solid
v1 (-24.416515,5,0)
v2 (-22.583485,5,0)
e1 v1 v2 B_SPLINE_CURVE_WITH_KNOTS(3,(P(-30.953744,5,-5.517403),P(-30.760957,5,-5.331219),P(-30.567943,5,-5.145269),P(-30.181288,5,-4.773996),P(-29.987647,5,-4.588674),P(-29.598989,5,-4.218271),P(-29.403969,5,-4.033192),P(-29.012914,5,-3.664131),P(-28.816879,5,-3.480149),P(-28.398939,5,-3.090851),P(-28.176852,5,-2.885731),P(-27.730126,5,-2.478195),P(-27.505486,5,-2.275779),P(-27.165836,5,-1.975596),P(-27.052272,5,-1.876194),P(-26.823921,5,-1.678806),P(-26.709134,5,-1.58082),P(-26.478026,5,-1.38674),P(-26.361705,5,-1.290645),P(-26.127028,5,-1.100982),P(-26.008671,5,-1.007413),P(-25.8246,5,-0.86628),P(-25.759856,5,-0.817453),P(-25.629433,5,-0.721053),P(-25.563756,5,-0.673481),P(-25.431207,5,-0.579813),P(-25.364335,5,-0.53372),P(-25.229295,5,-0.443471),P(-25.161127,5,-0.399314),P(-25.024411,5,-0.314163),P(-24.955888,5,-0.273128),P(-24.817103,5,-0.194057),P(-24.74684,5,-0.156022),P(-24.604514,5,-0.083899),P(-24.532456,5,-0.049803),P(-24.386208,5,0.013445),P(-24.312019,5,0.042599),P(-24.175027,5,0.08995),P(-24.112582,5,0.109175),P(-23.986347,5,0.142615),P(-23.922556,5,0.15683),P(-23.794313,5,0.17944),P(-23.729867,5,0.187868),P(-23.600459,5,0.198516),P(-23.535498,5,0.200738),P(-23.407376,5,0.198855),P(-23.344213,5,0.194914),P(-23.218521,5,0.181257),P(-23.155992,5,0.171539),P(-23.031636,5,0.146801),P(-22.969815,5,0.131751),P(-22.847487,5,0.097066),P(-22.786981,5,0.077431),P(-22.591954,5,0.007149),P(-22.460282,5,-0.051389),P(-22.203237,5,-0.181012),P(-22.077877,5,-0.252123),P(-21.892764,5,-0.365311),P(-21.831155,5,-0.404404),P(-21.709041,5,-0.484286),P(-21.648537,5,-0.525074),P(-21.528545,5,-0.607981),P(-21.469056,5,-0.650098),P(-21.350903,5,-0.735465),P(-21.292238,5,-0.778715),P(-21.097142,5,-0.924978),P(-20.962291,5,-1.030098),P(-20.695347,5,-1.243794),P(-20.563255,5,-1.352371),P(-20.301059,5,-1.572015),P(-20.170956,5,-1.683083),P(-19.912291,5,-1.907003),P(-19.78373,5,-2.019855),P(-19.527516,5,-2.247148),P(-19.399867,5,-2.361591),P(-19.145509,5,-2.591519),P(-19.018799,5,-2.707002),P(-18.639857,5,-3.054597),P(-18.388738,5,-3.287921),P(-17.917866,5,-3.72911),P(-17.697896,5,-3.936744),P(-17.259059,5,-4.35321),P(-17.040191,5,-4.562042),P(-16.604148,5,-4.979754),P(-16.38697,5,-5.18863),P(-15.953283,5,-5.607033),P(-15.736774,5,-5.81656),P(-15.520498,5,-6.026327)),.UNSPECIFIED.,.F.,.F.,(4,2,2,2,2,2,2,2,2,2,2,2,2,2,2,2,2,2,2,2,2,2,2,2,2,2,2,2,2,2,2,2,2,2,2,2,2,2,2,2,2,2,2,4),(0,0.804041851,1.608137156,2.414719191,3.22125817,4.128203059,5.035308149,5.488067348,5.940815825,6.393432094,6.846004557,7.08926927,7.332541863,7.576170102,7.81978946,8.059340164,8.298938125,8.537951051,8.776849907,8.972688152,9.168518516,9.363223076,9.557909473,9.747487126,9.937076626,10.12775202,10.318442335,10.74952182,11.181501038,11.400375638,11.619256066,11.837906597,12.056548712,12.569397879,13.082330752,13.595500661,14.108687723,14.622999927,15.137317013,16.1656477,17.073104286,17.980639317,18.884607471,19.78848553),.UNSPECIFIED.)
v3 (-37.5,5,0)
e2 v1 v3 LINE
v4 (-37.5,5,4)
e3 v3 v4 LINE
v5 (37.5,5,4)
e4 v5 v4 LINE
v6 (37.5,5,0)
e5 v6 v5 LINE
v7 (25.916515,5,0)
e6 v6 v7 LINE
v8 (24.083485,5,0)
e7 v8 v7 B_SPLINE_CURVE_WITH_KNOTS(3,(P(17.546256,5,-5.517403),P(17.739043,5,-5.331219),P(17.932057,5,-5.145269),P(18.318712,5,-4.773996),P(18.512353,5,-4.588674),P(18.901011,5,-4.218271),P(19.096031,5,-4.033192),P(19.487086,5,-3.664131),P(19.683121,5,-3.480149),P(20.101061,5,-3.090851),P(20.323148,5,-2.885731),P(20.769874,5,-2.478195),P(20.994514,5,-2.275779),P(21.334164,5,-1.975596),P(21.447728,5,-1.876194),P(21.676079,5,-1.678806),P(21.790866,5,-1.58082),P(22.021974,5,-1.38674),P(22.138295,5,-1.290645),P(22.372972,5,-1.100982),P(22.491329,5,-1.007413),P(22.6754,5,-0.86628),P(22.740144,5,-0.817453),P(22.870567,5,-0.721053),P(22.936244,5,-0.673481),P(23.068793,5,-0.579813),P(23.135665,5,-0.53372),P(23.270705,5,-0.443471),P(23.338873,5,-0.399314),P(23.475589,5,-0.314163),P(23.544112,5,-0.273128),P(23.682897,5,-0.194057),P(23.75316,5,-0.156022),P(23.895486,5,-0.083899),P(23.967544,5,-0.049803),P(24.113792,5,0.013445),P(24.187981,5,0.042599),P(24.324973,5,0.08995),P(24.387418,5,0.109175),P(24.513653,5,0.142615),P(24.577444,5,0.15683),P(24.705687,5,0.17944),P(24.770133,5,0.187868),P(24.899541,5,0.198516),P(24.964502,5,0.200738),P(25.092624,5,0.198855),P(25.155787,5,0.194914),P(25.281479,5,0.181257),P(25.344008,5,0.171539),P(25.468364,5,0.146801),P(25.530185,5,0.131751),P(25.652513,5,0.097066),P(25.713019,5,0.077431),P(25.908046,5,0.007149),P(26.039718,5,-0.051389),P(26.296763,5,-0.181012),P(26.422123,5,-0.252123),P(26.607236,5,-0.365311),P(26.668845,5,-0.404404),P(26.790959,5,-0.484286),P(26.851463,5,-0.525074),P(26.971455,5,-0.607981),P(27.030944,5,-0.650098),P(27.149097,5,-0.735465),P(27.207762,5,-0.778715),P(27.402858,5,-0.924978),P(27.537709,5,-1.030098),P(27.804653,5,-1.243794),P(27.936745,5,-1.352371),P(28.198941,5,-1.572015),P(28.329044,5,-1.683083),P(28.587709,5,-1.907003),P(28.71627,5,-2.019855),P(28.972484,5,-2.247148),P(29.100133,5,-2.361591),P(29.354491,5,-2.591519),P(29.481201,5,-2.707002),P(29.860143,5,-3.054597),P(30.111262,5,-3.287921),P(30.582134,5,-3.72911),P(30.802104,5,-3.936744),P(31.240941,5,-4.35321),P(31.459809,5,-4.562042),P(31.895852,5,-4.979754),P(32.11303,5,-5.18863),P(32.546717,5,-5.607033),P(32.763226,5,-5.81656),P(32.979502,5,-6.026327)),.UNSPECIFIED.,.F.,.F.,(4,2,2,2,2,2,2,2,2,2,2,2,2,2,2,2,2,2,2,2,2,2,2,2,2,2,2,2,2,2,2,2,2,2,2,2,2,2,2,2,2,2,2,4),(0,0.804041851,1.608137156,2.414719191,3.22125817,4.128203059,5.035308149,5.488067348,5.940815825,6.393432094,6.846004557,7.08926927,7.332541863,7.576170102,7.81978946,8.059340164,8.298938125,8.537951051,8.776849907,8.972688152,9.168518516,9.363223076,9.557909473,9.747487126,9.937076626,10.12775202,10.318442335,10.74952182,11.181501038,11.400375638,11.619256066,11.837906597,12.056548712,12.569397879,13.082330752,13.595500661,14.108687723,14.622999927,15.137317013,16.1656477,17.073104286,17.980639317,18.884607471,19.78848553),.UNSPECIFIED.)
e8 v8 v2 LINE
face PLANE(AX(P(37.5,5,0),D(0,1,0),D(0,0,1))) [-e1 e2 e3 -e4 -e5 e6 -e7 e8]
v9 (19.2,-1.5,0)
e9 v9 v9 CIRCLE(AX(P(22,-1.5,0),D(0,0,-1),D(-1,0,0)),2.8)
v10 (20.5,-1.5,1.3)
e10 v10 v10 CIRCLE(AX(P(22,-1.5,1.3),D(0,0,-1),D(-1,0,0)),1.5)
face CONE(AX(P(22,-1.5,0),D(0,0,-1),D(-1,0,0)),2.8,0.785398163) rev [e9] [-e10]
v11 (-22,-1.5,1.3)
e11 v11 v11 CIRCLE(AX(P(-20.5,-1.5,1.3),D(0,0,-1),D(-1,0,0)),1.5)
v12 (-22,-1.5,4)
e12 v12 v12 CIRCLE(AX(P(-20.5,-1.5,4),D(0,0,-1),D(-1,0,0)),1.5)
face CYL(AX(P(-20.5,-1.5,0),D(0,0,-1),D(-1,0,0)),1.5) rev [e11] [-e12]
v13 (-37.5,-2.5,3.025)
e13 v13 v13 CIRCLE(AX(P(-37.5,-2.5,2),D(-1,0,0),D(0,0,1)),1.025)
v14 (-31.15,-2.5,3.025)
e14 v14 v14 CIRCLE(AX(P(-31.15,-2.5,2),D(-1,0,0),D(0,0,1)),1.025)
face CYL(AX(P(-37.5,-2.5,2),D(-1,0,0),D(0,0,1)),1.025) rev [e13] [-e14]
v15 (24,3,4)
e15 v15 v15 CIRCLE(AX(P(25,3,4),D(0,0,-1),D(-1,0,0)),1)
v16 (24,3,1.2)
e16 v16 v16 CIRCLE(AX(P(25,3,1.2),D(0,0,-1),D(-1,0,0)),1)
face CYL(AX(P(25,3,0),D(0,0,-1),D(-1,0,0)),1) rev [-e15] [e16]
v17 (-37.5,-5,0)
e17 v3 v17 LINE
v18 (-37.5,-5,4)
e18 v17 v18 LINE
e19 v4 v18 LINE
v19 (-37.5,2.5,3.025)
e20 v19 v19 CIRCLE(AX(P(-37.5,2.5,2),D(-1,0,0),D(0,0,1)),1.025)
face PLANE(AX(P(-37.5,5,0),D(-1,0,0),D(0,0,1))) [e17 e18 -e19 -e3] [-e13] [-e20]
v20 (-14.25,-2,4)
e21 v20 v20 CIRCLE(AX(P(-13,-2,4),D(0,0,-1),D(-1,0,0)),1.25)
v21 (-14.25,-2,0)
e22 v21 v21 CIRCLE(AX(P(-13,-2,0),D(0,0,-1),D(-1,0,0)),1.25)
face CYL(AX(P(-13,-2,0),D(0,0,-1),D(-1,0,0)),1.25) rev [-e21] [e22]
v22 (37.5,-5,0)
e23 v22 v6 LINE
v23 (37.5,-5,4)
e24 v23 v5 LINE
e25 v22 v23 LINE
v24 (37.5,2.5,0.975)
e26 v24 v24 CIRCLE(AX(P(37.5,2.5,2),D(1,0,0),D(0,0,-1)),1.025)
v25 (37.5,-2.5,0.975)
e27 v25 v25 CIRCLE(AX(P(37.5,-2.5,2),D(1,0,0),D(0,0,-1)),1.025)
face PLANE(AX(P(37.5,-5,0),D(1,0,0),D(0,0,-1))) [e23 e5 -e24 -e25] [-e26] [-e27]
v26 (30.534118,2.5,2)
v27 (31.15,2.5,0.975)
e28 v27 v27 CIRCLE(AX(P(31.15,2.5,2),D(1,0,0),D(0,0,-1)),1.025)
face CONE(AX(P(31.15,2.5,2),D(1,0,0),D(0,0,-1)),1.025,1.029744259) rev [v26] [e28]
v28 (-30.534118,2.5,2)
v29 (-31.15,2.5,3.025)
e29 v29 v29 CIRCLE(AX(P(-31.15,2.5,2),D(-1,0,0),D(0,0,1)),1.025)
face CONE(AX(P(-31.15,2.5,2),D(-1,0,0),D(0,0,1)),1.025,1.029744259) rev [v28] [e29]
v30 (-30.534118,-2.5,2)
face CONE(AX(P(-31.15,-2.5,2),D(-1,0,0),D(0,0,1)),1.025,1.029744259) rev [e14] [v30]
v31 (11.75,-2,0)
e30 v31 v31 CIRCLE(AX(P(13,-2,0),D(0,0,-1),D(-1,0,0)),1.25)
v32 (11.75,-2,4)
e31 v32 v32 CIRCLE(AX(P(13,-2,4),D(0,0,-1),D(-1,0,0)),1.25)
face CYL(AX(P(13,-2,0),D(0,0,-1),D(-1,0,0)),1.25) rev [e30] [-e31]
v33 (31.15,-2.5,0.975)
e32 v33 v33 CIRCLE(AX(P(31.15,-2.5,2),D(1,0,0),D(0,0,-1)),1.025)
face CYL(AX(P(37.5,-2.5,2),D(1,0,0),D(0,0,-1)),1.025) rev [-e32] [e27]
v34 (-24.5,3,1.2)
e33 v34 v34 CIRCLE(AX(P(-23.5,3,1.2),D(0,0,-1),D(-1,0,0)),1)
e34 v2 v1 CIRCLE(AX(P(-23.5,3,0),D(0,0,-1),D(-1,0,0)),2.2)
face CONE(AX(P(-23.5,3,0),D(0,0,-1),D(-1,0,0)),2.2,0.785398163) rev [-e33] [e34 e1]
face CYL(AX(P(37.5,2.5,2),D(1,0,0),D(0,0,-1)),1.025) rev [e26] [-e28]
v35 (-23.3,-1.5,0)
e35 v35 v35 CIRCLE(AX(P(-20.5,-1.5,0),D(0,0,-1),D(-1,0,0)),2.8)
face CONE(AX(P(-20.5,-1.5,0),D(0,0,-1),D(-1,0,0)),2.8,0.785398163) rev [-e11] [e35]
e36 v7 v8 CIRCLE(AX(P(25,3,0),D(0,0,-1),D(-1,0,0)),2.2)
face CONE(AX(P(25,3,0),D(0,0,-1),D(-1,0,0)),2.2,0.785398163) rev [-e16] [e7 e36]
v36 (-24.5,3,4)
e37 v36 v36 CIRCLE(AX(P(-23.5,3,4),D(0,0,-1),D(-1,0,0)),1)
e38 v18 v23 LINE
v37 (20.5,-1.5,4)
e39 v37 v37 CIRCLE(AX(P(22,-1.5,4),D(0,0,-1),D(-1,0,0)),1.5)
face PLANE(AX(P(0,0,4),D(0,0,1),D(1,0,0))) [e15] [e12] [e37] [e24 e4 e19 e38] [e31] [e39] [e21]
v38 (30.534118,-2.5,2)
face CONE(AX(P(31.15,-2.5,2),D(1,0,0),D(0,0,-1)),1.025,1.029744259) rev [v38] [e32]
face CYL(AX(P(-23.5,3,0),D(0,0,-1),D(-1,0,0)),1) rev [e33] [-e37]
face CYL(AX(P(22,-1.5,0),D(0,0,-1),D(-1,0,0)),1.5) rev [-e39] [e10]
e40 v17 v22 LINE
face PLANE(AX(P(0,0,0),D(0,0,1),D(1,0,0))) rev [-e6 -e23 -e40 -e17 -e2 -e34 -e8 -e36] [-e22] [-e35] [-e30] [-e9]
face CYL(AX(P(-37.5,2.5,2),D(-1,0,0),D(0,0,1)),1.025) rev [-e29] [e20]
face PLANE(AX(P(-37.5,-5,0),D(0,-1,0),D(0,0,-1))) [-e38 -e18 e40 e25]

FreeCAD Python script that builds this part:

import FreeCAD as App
import Part
import Sketcher
Q = App.Units.Quantity

doc = App.newDocument("Part")
body = doc.addObject("PartDesign::Body", "Body")

sketch1 = body.newObject("Sketcher::SketchObject", "Sketch")
sketch1.AttachmentSupport = (doc.getObject("XY_Plane"), [""])
sketch1.MapMode = "FlatFace"
sketch1.AttachmentOffset = App.Placement(App.Vector(0, 0, 4), App.Rotation())
sketch1.addGeometry(Part.LineSegment(App.Vector(-38, 5, 0), App.Vector(-38, -5, 0)), False)
sketch1.addGeometry(Part.LineSegment(App.Vector(-38, -5, 0), App.Vector(38, -5, 0)), False)
sketch1.addGeometry(Part.LineSegment(App.Vector(38, -5, 0), App.Vector(38, 5, 0)), False)
sketch1.addGeometry(Part.LineSegment(App.Vector(38, 5, 0), App.Vector(-38, 5, 0)), False)
sketch1.addConstraint(Sketcher.Constraint("Coincident", 0, 2, 1, 1))
sketch1.addConstraint(Sketcher.Constraint("Coincident", 1, 2, 2, 1))
sketch1.addConstraint(Sketcher.Constraint("Coincident", 2, 2, 3, 1))
sketch1.addConstraint(Sketcher.Constraint("Coincident", 3, 2, 0, 1))
sketch1.addConstraint(Sketcher.Constraint("Vertical", 0))
sketch1.addConstraint(Sketcher.Constraint("Horizontal", 1))
sketch1.addConstraint(Sketcher.Constraint("Vertical", 2))
sketch1.addConstraint(Sketcher.Constraint("Horizontal", 3))
sketch1.addConstraint(Sketcher.Constraint("Symmetric", 0, 2, 2, 2, -1, 1))
sketch1.addConstraint(Sketcher.Constraint("DistanceX", 1, 1, 1, 2, Q("75 mm")))
sketch1.addConstraint(Sketcher.Constraint("DistanceY", 0, 2, 0, 1, Q("10 mm")))
pad1 = body.newObject("PartDesign::Pad", "Pad")
pad1.Profile = sketch1
pad1.Length = 4
pad1.Reversed = True

sketch2 = body.newObject("Sketcher::SketchObject", "Sketch001")
sketch2.AttachmentSupport = (doc.getObject("XY_Plane"), [""])
sketch2.MapMode = "FlatFace"
sketch2.addGeometry(Part.Circle(App.Vector(13, -2, 0), App.Vector(0, 0, 1), 1.2), False)
sketch2.addGeometry(Part.Circle(App.Vector(-13, -2, 0), App.Vector(0, 0, 1), 1.2), False)
sketch2.addConstraint(Sketcher.Constraint("Equal", 0, 1))
sketch2.addConstraint(Sketcher.Constraint("Symmetric", 0, 3, 1, 3, -2))
sketch2.addConstraint(Sketcher.Constraint("Diameter", 0, Q("2.5 mm")))
sketch2.addConstraint(Sketcher.Constraint("DistanceX", -1, 1, 0, 3, Q("13 mm")))
sketch2.addConstraint(Sketcher.Constraint("DistanceY", 0, 3, -1, 1, Q("2 mm")))
doc.recompute()
hole = body.newObject("PartDesign::Hole", "Hole")
hole.Profile = sketch2
hole.ThreadType = "None"
hole.Diameter = 2.5
hole.DepthType = "ThroughAll"
hole.Reversed = True

sketch3 = body.newObject("Sketcher::SketchObject", "Sketch002")
sketch3.AttachmentSupport = (doc.getObject("XY_Plane"), [""])
sketch3.MapMode = "FlatFace"
sketch3.addGeometry(Part.Circle(App.Vector(22, -1.5, 0), App.Vector(0, 0, 1), 1.5), False)
sketch3.addGeometry(Part.Circle(App.Vector(-20.5, -1.5, 0), App.Vector(0, 0, 1), 1.5), False)
sketch3.addConstraint(Sketcher.Constraint("Equal", 0, 1))
sketch3.addConstraint(Sketcher.Constraint("Horizontal", 0, 3, 1, 3))
sketch3.addConstraint(Sketcher.Constraint("Diameter", 0, Q("3 mm")))
sketch3.addConstraint(Sketcher.Constraint("DistanceX", -1, 1, 0, 3, Q("22 mm")))
sketch3.addConstraint(Sketcher.Constraint("DistanceY", 0, 3, -1, 1, Q("1.5 mm")))
sketch3.addConstraint(Sketcher.Constraint("DistanceX", 1, 3, -1, 1, Q("20.5 mm")))
doc.recompute()
hole2 = body.newObject("PartDesign::Hole", "Hole001")
hole2.Profile = sketch3
hole2.ThreadType = "None"
hole2.Diameter = 3
hole2.DepthType = "ThroughAll"
hole2.HoleCutType = "Countersink"
hole2.HoleCutDiameter = 5.6
hole2.HoleCutCountersinkAngle = 90
hole2.Reversed = True

sketch4 = body.newObject("Sketcher::SketchObject", "Sketch003")
sketch4.AttachmentSupport = (doc.getObject("XY_Plane"), [""])
sketch4.MapMode = "FlatFace"
sketch4.addGeometry(Part.Circle(App.Vector(-23.5, 3, 0), App.Vector(0, 0, 1), 1), False)
sketch4.addGeometry(Part.Circle(App.Vector(25, 3, 0), App.Vector(0, 0, 1), 1), False)
sketch4.addConstraint(Sketcher.Constraint("Equal", 0, 1))
sketch4.addConstraint(Sketcher.Constraint("Horizontal", 0, 3, 1, 3))
sketch4.addConstraint(Sketcher.Constraint("Diameter", 0, Q("2 mm")))
sketch4.addConstraint(Sketcher.Constraint("DistanceY", -1, 1, 0, 3, Q("3 mm")))
sketch4.addConstraint(Sketcher.Constraint("DistanceX", -1, 1, 1, 3, Q("25 mm")))
sketch4.addConstraint(Sketcher.Constraint("DistanceX", 0, 3, -1, 1, Q("23.5 mm")))
doc.recompute()
hole3 = body.newObject("PartDesign::Hole", "Hole002")
hole3.Profile = sketch4
hole3.ThreadType = "None"
hole3.Diameter = 2
hole3.DepthType = "ThroughAll"
hole3.HoleCutType = "Countersink"
hole3.HoleCutDiameter = 4.4
hole3.HoleCutCountersinkAngle = 90
hole3.Reversed = True

sketch5 = body.newObject("Sketcher::SketchObject", "Sketch004")
sketch5.AttachmentSupport = (doc.getObject("YZ_Plane"), [""])
sketch5.MapMode = "FlatFace"
sketch5.AttachmentOffset = App.Placement(App.Vector(0, 0, 37.5), App.Rotation())
sketch5.addGeometry(Part.Circle(App.Vector(2.5, 2, 0), App.Vector(0, 0, 1), 1), False)
sketch5.addGeometry(Part.Circle(App.Vector(-2.5, 2, 0), App.Vector(0, 0, 1), 1), False)
sketch5.addConstraint(Sketcher.Constraint("Equal", 0, 1))
sketch5.addConstraint(Sketcher.Constraint("Symmetric", 0, 3, 1, 3, -2))
sketch5.addConstraint(Sketcher.Constraint("Diameter", 0, Q("2.05 mm")))
sketch5.addConstraint(Sketcher.Constraint("DistanceY", -1, 1, 0, 3, Q("2 mm")))
sketch5.addConstraint(Sketcher.Constraint("DistanceX", 1, 3, 0, 3, Q("5 mm")))
doc.recompute()
hole4 = body.newObject("PartDesign::Hole", "Hole003")
hole4.Profile = sketch5
hole4.ThreadType = "None"
hole4.Diameter = 2.05
hole4.DepthType = "Dimension"
hole4.Depth = 6.35
hole4.DrillPoint = "Angled"
hole4.DrillPointAngle = 118

sketch6 = body.newObject("Sketcher::SketchObject", "Sketch005")
sketch6.AttachmentSupport = (doc.getObject("YZ_Plane"), [""])
sketch6.MapMode = "FlatFace"
sketch6.AttachmentOffset = App.Placement(App.Vector(0, 0, -37.5), App.Rotation())
sketch6.addGeometry(Part.Circle(App.Vector(-2.5, 2, 0), App.Vector(0, 0, 1), 1), False)
sketch6.addGeometry(Part.Circle(App.Vector(2.5, 2, 0), App.Vector(0, 0, 1), 1), False)
sketch6.addConstraint(Sketcher.Constraint("Equal", 0, 1))
sketch6.addConstraint(Sketcher.Constraint("Symmetric", 0, 3, 1, 3, -2))
sketch6.addConstraint(Sketcher.Constraint("Diameter", 0, Q("2.05 mm")))
sketch6.addConstraint(Sketcher.Constraint("DistanceY", -1, 1, 0, 3, Q("2 mm")))
sketch6.addConstraint(Sketcher.Constraint("DistanceX", 0, 3, 1, 3, Q("5 mm")))
doc.recompute()
hole5 = body.newObject("PartDesign::Hole", "Hole004")
hole5.Profile = sketch6
hole5.ThreadType = "None"
hole5.Diameter = 2.05
hole5.DepthType = "Dimension"
hole5.Depth = 6.35
hole5.DrillPoint = "Angled"
hole5.DrillPointAngle = 118
hole5.Reversed = True

doc.recompute()
